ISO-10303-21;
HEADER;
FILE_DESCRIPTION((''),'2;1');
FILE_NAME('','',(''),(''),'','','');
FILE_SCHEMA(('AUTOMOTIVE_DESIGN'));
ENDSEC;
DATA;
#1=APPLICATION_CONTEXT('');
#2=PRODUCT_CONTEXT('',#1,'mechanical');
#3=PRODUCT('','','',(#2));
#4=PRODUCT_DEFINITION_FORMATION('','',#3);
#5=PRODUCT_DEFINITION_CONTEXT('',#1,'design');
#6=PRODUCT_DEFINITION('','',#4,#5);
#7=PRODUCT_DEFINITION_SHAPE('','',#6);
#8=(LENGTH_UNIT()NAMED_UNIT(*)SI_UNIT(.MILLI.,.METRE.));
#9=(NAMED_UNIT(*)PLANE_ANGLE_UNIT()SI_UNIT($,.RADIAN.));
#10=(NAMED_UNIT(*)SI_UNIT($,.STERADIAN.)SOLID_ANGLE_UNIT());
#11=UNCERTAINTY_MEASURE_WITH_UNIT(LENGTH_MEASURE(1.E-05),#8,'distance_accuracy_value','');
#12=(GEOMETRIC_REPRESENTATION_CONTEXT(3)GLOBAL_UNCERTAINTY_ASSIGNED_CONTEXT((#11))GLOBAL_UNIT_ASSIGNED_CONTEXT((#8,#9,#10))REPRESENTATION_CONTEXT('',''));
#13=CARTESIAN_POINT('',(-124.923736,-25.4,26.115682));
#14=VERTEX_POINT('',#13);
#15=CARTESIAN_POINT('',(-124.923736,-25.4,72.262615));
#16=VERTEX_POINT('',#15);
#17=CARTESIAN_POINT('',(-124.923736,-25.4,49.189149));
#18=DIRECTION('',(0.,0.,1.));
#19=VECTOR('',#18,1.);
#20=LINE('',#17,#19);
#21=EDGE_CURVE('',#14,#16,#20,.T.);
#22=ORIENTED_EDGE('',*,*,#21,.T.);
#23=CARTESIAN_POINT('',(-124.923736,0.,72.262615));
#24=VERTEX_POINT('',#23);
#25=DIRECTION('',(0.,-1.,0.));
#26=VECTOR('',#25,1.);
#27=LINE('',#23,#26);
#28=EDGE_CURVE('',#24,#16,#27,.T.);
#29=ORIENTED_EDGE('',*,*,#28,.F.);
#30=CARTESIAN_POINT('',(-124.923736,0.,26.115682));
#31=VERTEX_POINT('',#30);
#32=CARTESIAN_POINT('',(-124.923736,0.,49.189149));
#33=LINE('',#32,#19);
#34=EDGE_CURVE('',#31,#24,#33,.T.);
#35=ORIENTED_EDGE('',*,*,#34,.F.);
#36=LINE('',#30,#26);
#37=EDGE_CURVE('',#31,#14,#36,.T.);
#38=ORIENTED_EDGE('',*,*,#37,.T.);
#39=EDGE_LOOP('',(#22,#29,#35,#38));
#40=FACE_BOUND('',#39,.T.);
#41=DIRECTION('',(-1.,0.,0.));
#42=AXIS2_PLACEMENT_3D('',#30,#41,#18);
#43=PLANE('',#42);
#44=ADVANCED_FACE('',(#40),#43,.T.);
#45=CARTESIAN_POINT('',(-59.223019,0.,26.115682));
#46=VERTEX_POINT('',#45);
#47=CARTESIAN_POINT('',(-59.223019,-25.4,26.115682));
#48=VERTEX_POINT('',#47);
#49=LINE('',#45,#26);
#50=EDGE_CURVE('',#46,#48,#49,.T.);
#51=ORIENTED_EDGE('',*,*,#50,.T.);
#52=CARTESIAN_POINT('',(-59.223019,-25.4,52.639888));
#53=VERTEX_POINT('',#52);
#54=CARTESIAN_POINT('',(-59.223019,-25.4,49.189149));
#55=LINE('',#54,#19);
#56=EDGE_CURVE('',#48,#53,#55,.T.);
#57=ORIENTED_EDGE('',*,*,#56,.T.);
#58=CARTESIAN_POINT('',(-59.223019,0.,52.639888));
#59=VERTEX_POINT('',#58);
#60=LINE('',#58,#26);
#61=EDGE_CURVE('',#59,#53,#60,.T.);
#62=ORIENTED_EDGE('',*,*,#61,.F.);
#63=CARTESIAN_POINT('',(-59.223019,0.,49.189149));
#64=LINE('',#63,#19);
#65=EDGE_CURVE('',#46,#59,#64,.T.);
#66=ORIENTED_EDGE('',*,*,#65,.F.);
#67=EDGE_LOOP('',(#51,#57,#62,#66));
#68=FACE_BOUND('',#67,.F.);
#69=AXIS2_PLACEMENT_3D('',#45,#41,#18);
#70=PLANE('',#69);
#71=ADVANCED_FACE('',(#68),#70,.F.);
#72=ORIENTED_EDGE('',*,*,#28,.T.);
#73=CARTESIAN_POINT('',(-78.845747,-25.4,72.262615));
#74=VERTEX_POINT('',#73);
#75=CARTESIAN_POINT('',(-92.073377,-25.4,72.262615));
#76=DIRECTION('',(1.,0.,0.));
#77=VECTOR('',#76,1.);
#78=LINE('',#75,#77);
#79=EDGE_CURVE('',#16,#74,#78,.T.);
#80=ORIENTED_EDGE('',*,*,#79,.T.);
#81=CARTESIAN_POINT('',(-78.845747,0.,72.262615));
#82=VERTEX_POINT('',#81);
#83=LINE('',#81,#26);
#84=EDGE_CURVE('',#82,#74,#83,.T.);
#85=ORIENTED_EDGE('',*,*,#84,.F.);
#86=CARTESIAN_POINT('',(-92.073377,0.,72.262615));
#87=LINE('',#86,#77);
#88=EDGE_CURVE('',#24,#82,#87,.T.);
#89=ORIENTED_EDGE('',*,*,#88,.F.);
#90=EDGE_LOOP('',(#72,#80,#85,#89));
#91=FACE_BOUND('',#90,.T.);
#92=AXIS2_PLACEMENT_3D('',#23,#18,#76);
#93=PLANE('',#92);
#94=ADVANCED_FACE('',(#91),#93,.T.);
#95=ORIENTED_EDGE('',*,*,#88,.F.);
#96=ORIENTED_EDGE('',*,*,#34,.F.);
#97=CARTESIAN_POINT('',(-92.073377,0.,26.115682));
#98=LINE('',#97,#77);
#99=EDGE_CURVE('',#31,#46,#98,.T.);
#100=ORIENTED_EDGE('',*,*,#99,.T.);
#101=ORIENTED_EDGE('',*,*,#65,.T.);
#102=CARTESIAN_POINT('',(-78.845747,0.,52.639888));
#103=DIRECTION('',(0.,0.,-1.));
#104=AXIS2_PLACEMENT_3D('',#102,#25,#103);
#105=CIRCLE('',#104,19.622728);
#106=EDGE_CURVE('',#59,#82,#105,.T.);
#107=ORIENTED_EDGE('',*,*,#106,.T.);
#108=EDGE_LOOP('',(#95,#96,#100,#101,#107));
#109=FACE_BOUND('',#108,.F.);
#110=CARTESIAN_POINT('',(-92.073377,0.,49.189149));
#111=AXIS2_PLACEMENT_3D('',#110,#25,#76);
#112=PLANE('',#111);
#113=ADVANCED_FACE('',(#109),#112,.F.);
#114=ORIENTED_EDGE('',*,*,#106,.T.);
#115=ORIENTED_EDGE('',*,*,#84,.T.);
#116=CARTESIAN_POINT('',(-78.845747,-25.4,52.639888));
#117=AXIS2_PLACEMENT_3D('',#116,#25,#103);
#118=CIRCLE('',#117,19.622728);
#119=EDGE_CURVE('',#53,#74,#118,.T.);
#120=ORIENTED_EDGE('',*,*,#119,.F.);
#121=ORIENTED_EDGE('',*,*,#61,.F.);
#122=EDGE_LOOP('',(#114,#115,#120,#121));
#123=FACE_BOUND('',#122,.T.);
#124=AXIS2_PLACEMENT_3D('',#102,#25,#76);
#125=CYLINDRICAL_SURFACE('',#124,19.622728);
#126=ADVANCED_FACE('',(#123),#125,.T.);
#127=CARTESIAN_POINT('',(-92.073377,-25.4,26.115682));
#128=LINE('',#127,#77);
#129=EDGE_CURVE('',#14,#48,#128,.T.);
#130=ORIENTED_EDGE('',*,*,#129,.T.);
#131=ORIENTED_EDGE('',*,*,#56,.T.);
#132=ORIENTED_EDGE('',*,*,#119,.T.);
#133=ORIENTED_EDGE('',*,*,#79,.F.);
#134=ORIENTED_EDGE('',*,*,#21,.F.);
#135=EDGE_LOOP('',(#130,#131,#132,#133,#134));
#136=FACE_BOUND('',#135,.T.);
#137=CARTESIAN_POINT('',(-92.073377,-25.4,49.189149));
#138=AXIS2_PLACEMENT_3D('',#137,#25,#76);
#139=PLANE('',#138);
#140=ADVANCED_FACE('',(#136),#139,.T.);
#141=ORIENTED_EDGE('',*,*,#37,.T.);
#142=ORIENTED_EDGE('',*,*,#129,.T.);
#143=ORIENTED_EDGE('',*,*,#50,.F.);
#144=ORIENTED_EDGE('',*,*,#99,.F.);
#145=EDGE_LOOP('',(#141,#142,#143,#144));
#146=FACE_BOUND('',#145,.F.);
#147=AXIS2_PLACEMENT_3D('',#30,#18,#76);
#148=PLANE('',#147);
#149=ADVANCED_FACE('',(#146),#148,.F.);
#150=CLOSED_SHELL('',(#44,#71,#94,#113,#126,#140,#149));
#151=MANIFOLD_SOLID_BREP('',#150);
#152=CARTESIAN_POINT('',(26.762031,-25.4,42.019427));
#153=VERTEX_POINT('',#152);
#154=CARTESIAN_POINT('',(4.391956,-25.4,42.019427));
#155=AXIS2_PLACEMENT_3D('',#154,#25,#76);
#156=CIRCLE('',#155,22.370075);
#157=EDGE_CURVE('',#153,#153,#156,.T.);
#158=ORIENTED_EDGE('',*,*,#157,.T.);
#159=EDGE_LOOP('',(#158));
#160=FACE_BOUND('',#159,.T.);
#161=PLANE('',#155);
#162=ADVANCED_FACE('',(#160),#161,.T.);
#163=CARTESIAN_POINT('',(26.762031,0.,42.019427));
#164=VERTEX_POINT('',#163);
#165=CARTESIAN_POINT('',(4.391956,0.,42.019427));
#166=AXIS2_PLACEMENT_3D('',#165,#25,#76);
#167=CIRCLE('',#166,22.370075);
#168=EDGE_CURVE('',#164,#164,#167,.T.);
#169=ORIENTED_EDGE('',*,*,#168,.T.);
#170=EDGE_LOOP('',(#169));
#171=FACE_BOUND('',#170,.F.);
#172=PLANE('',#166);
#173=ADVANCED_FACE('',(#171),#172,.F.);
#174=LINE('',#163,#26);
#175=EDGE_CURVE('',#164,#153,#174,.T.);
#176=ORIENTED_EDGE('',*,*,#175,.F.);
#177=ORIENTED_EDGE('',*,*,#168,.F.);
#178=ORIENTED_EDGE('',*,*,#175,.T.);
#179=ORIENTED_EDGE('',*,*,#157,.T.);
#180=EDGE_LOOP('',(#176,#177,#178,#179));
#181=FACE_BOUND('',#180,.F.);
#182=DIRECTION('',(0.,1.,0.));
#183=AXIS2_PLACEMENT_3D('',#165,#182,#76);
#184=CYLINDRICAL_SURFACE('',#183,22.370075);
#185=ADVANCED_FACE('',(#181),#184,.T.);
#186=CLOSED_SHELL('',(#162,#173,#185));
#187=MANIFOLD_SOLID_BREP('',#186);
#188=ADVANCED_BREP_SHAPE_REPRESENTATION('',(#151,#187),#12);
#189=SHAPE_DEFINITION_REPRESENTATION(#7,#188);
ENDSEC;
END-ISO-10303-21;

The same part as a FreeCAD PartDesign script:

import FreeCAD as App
import Part
import Sketcher

V = App.Vector
Q = App.Units.Quantity


def edges_at(feature, points):
    """Names of the edges that pass closest to the given points."""
    edges = feature.Shape.Edges
    near = lambda p: min(range(len(edges)), key=lambda i: edges[i].distToShape(Part.Vertex(*p))[0])
    return sorted({f"Edge{near(p) + 1}" for p in points})


def add_polygon(sketch, points):
    """Adds a closed chain of lines whose ends are joined by coincident constraints."""
    first, n = sketch.GeometryCount, len(points)
    for a, b in zip(points, points[1:] + points[:1]):
        sketch.addGeometry(Part.LineSegment(App.Vector(*a, 0), App.Vector(*b, 0)), False)
    for i in range(n):
        sketch.addConstraint(Sketcher.Constraint("Coincident", first + i, 2, first + (i + 1) % n, 1))

doc = App.newDocument("Part")
body = doc.addObject("PartDesign::Body", "Body")
body.AllowCompound = True

# Sketch on XZ plane
sketch1 = body.newObject("Sketcher::SketchObject", "Sketch")
sketch1.AttachmentSupport = (doc.getObject("XZ_Plane"), [""])
sketch1.MapMode = "FlatFace"
add_polygon(sketch1, [(-125, 72), (-125, 26), (-59, 26), (-59, 72)])  # lines 0-3
sketch1.addGeometry(Part.Circle(V(4, 42, 0), V(0, 0, 1), 22), False)  # 4
sketch1.addConstraint([
    Sketcher.Constraint("Vertical", 0),
    Sketcher.Constraint("Horizontal", 1),
    Sketcher.Constraint("Vertical", 2),
    Sketcher.Constraint("Horizontal", 3),
    Sketcher.Constraint("Diameter", 4, 44.74015),
    Sketcher.Constraint("DistanceX", 1, 1, 1, 2, 65.700717),
    Sketcher.Constraint("DistanceY", 0, 2, 0, 1, 46.146933),
    Sketcher.Constraint("DistanceX", 1, 2, -1, 1, 59.223019),
    Sketcher.Constraint("DistanceX", 0, 2, 4, 3, 129.315692),
    Sketcher.Constraint("DistanceY", 4, 3, 2, 2, 30.243188),
    Sketcher.Constraint("DistanceY", -1, 1, 4, 3, 42.019427),
])
pad1 = body.newObject("PartDesign::Pad", "Pad")
pad1.Profile = sketch1
pad1.Length = Q("1 in")
doc.recompute()

fillet = body.newObject("PartDesign::Fillet", "Fillet")
fillet.Base = (pad1, edges_at(pad1, [(-59.223, -12.7, 72.263)]))
fillet.Radius = 19.622728

doc.recompute()
